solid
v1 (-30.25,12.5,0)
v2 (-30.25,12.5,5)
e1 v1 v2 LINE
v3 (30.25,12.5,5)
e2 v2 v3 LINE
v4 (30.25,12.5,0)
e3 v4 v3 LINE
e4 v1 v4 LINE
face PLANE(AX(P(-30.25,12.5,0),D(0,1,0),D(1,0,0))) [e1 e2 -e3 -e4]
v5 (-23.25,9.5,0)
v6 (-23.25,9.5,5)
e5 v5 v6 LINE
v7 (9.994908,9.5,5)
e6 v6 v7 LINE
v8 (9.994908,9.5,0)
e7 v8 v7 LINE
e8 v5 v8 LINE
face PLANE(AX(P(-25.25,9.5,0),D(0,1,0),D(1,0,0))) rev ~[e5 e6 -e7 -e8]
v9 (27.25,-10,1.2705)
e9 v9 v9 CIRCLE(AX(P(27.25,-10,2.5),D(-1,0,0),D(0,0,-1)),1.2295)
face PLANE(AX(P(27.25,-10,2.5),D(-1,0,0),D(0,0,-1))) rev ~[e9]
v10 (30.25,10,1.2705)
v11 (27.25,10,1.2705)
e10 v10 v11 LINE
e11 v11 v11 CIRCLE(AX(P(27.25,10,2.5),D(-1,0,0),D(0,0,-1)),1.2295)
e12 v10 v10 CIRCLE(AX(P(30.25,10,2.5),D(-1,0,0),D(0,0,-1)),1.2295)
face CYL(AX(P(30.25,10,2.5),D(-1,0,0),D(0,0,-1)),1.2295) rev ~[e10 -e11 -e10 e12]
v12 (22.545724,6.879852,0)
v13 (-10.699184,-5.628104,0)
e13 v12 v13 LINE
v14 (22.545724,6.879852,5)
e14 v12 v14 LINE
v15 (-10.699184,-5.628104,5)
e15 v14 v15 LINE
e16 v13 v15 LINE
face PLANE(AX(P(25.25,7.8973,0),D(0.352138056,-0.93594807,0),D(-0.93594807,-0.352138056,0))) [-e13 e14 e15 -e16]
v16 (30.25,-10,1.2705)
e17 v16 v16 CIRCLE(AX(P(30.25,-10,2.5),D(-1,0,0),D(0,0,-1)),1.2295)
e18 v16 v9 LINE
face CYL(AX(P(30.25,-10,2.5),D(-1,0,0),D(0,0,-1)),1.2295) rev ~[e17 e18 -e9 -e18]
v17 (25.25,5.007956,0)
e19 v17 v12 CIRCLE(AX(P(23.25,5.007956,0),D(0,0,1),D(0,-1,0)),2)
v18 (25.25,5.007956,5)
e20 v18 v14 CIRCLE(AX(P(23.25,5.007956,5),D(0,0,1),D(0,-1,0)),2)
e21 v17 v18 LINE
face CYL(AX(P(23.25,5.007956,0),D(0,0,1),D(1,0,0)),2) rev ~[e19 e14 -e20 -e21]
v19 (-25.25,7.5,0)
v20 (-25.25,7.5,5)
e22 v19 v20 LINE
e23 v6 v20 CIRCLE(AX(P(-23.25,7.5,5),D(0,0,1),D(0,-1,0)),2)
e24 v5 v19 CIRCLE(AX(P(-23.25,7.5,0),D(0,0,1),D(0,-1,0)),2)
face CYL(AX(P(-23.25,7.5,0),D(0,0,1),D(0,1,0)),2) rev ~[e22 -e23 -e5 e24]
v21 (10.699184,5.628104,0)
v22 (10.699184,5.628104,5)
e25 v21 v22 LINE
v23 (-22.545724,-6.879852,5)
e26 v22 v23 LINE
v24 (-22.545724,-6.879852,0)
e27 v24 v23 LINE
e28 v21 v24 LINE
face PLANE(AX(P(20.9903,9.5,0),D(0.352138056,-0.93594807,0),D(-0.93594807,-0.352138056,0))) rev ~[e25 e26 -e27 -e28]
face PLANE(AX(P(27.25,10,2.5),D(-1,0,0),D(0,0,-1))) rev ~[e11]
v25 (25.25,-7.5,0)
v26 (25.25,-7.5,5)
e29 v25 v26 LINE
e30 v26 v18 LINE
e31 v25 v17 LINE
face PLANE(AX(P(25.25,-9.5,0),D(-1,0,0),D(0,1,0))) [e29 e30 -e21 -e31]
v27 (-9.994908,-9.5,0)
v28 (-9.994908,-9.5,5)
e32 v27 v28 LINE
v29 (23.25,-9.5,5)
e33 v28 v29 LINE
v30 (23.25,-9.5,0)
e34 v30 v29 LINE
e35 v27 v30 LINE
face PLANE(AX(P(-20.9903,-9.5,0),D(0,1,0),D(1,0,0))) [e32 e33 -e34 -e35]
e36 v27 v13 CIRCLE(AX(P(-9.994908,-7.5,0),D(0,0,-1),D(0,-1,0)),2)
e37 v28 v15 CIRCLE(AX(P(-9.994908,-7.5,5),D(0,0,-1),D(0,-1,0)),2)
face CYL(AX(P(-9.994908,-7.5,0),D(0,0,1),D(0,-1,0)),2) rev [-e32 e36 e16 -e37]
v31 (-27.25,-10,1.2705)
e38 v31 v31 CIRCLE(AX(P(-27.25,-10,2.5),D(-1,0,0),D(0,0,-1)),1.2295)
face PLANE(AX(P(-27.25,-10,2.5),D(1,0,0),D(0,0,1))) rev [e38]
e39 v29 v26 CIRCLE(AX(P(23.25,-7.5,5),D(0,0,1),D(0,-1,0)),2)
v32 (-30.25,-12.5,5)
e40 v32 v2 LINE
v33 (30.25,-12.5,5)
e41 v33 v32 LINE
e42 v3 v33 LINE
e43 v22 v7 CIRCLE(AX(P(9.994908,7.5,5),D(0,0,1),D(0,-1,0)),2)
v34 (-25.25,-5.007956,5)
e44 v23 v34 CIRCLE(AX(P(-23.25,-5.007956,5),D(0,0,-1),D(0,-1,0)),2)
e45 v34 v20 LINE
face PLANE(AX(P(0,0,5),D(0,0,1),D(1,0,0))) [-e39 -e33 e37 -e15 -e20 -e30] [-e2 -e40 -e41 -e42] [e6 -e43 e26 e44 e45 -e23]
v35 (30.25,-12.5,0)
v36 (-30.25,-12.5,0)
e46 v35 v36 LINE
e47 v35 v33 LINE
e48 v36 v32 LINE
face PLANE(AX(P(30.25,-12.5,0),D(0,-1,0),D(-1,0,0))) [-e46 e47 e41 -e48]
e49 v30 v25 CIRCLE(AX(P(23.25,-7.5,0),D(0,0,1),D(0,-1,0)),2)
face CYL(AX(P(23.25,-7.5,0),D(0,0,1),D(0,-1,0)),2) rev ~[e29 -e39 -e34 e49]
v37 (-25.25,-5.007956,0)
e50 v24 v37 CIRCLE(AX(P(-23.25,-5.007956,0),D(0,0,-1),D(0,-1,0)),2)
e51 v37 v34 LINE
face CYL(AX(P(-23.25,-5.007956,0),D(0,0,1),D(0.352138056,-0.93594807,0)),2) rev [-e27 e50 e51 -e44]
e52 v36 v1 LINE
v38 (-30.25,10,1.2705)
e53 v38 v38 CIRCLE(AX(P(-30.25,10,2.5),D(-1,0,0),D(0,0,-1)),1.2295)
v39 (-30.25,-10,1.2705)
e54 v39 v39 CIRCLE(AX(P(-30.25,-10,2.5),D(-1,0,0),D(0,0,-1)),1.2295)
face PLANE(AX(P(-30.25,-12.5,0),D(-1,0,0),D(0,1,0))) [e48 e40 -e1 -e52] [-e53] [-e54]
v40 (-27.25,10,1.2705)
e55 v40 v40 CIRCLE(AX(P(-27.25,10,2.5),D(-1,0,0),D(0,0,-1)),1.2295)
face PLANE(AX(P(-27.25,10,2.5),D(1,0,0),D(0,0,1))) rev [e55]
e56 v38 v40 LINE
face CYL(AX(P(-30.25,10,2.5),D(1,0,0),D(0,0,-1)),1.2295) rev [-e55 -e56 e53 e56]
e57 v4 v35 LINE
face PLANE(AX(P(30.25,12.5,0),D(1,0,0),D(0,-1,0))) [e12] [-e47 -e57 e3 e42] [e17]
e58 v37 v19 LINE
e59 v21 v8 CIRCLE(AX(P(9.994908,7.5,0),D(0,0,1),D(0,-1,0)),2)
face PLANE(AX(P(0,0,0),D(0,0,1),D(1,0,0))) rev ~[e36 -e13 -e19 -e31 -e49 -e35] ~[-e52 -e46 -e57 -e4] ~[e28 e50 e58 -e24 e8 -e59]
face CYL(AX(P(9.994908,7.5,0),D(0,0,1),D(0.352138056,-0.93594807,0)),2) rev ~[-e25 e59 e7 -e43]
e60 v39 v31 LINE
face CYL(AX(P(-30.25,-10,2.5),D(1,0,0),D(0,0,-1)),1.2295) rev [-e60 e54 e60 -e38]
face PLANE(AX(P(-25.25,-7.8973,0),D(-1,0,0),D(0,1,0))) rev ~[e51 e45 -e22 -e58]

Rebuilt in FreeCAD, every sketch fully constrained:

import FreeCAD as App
import Part
import Sketcher

V = App.Vector


def edges_at(feature, points):
    """Names of the edges that pass closest to the given points."""
    edges = feature.Shape.Edges
    near = lambda p: min(range(len(edges)), key=lambda i: edges[i].distToShape(Part.Vertex(*p))[0])
    return sorted({f"Edge{near(p) + 1}" for p in points})

doc = App.newDocument("Part")
body = doc.addObject("PartDesign::Body", "Body")

# Sketch on XY plane
sketch1 = doc.addObject("Sketcher::SketchObject", "Sketch")
body.addObject(sketch1)
sketch1.AttachmentSupport = (doc.XY_Plane, [""])
sketch1.MapMode = "FlatFace"
sketch1.addGeometry(Part.LineSegment(V(30.25, 12.5, 0), V(-30.25, 12.5, 0)), False)
sketch1.addGeometry(Part.LineSegment(V(-30.25, 12.5, 0), V(-30.25, -12.5, 0)), False)
sketch1.addGeometry(Part.LineSegment(V(-30.25, -12.5, 0), V(30.25, -12.5, 0)), False)
sketch1.addGeometry(Part.LineSegment(V(30.25, -12.5, 0), V(30.25, 12.5, 0)), False)
sketch1.addGeometry(Part.LineSegment(V(25.25, -9.5, 0), V(-20.9903, -9.5, 0)), False)
sketch1.addGeometry(Part.LineSegment(V(-20.9903, -9.5, 0), V(25.25, 7.8973, 0)), False)
sketch1.addGeometry(Part.LineSegment(V(25.25, 7.8973, 0), V(25.25, -9.5, 0)), False)
sketch1.addGeometry(Part.LineSegment(V(20.9903, 9.5, 0), V(-25.25, -7.8973, 0)), False)
sketch1.addGeometry(Part.LineSegment(V(-25.25, -7.8973, 0), V(-25.25, 9.5, 0)), False)
sketch1.addGeometry(Part.LineSegment(V(-25.25, 9.5, 0), V(20.9903, 9.5, 0)), False)
sketch1.addConstraint(Sketcher.Constraint("Coincident", 0, 2, 1, 1))
sketch1.addConstraint(Sketcher.Constraint("Coincident", 1, 2, 2, 1))
sketch1.addConstraint(Sketcher.Constraint("Coincident", 2, 2, 3, 1))
sketch1.addConstraint(Sketcher.Constraint("Coincident", 3, 2, 0, 1))
sketch1.addConstraint(Sketcher.Constraint("Coincident", 4, 2, 5, 1))
sketch1.addConstraint(Sketcher.Constraint("Coincident", 5, 2, 6, 1))
sketch1.addConstraint(Sketcher.Constraint("Coincident", 6, 2, 4, 1))
sketch1.addConstraint(Sketcher.Constraint("Coincident", 7, 2, 8, 1))
sketch1.addConstraint(Sketcher.Constraint("Coincident", 8, 2, 9, 1))
sketch1.addConstraint(Sketcher.Constraint("Coincident", 9, 2, 7, 1))
sketch1.addConstraint(Sketcher.Constraint("Horizontal", 0))
sketch1.addConstraint(Sketcher.Constraint("Vertical", 1))
sketch1.addConstraint(Sketcher.Constraint("Horizontal", 2))
sketch1.addConstraint(Sketcher.Constraint("Vertical", 3))
sketch1.addConstraint(Sketcher.Constraint("Horizontal", 4))
sketch1.addConstraint(Sketcher.Constraint("Vertical", 6))
sketch1.addConstraint(Sketcher.Constraint("Vertical", 8))
sketch1.addConstraint(Sketcher.Constraint("Horizontal", 9))
sketch1.addConstraint(Sketcher.Constraint("Symmetric", 0, 2, 2, 2, -1, 1))
sketch1.addConstraint(Sketcher.Constraint("Symmetric", 5, 2, 7, 2, -1, 1))
sketch1.addConstraint(Sketcher.Constraint("Symmetric", 4, 2, 9, 2, -1, 1))
sketch1.addConstraint(Sketcher.Constraint("DistanceY", 1, 2, 1, 1, 25.0))
sketch1.addConstraint(Sketcher.Constraint("DistanceX", 0, 2, 0, 1, 60.5))
sketch1.addConstraint(Sketcher.Constraint("DistanceY", 1, 2, 4, 2, 3.0))
sketch1.addConstraint(Sketcher.Constraint("DistanceX", 5, 2, 3, 2, 5.0))
sketch1.addConstraint(Sketcher.Constraint("DistanceX", 4, 2, 4, 1, 46.2403))
sketch1.addConstraint(Sketcher.Constraint("DistanceY", 6, 2, 6, 1, 17.3973))
pad1 = doc.addObject("PartDesign::Pad", "Pad")
body.addObject(pad1)
pad1.Profile = sketch1
pad1.Length = 5

# Sketch on YZ plane
sketch2 = doc.addObject("Sketcher::SketchObject", "Sketch001")
body.addObject(sketch2)
sketch2.AttachmentSupport = (doc.YZ_Plane, [""])
sketch2.MapMode = "FlatFace"
sketch2.AttachmentOffset = App.Placement(V(0, 0, 30.25), App.Rotation())
sketch2.addGeometry(Part.Circle(V(-10, 2.5, 0), V(0, 0, 1), 1.2295), False)
sketch2.addGeometry(Part.Circle(V(10, 2.5, 0), V(0, 0, 1), 1.2295), False)
sketch2.addConstraint(Sketcher.Constraint("Equal", 0, 1))
sketch2.addConstraint(Sketcher.Constraint("Symmetric", 0, 3, 1, 3, -2))
sketch2.addConstraint(Sketcher.Constraint("Diameter", 0, 2.459))
sketch2.addConstraint(Sketcher.Constraint("DistanceX", 0, 3, -1, 1, 10.0))
sketch2.addConstraint(Sketcher.Constraint("DistanceY", -1, 1, 0, 3, 2.5))
doc.recompute()
hole = doc.addObject("PartDesign::Hole", "Hole")
body.addObject(hole)
hole.Profile = sketch2
hole.ThreadType = "None"
hole.Diameter = 2.459
hole.DepthType = "Dimension"
hole.Depth = 3
hole.DrillPoint = "Flat"
doc.recompute()

mirrored = doc.addObject("PartDesign::Mirrored", "Mirrored")
body.addObject(mirrored)
mirrored.Originals = [hole]
mirrored.MirrorPlane = (doc.YZ_Plane, [""])
body.Tip = mirrored
doc.recompute()

fillet = doc.addObject("PartDesign::Fillet", "Fillet")
body.addObject(fillet)
fillet.Base = (mirrored, edges_at(mirrored, [
    (-20.99, -9.5, 2.5),
    (-25.25, -7.897, 2.5),
    (25.25, 7.897, 2.5),
    (25.25, -9.5, 2.5),
    (-25.25, 9.5, 2.5),
    (20.99, 9.5, 2.5),
]))
fillet.Radius = 2

doc.recompute()
